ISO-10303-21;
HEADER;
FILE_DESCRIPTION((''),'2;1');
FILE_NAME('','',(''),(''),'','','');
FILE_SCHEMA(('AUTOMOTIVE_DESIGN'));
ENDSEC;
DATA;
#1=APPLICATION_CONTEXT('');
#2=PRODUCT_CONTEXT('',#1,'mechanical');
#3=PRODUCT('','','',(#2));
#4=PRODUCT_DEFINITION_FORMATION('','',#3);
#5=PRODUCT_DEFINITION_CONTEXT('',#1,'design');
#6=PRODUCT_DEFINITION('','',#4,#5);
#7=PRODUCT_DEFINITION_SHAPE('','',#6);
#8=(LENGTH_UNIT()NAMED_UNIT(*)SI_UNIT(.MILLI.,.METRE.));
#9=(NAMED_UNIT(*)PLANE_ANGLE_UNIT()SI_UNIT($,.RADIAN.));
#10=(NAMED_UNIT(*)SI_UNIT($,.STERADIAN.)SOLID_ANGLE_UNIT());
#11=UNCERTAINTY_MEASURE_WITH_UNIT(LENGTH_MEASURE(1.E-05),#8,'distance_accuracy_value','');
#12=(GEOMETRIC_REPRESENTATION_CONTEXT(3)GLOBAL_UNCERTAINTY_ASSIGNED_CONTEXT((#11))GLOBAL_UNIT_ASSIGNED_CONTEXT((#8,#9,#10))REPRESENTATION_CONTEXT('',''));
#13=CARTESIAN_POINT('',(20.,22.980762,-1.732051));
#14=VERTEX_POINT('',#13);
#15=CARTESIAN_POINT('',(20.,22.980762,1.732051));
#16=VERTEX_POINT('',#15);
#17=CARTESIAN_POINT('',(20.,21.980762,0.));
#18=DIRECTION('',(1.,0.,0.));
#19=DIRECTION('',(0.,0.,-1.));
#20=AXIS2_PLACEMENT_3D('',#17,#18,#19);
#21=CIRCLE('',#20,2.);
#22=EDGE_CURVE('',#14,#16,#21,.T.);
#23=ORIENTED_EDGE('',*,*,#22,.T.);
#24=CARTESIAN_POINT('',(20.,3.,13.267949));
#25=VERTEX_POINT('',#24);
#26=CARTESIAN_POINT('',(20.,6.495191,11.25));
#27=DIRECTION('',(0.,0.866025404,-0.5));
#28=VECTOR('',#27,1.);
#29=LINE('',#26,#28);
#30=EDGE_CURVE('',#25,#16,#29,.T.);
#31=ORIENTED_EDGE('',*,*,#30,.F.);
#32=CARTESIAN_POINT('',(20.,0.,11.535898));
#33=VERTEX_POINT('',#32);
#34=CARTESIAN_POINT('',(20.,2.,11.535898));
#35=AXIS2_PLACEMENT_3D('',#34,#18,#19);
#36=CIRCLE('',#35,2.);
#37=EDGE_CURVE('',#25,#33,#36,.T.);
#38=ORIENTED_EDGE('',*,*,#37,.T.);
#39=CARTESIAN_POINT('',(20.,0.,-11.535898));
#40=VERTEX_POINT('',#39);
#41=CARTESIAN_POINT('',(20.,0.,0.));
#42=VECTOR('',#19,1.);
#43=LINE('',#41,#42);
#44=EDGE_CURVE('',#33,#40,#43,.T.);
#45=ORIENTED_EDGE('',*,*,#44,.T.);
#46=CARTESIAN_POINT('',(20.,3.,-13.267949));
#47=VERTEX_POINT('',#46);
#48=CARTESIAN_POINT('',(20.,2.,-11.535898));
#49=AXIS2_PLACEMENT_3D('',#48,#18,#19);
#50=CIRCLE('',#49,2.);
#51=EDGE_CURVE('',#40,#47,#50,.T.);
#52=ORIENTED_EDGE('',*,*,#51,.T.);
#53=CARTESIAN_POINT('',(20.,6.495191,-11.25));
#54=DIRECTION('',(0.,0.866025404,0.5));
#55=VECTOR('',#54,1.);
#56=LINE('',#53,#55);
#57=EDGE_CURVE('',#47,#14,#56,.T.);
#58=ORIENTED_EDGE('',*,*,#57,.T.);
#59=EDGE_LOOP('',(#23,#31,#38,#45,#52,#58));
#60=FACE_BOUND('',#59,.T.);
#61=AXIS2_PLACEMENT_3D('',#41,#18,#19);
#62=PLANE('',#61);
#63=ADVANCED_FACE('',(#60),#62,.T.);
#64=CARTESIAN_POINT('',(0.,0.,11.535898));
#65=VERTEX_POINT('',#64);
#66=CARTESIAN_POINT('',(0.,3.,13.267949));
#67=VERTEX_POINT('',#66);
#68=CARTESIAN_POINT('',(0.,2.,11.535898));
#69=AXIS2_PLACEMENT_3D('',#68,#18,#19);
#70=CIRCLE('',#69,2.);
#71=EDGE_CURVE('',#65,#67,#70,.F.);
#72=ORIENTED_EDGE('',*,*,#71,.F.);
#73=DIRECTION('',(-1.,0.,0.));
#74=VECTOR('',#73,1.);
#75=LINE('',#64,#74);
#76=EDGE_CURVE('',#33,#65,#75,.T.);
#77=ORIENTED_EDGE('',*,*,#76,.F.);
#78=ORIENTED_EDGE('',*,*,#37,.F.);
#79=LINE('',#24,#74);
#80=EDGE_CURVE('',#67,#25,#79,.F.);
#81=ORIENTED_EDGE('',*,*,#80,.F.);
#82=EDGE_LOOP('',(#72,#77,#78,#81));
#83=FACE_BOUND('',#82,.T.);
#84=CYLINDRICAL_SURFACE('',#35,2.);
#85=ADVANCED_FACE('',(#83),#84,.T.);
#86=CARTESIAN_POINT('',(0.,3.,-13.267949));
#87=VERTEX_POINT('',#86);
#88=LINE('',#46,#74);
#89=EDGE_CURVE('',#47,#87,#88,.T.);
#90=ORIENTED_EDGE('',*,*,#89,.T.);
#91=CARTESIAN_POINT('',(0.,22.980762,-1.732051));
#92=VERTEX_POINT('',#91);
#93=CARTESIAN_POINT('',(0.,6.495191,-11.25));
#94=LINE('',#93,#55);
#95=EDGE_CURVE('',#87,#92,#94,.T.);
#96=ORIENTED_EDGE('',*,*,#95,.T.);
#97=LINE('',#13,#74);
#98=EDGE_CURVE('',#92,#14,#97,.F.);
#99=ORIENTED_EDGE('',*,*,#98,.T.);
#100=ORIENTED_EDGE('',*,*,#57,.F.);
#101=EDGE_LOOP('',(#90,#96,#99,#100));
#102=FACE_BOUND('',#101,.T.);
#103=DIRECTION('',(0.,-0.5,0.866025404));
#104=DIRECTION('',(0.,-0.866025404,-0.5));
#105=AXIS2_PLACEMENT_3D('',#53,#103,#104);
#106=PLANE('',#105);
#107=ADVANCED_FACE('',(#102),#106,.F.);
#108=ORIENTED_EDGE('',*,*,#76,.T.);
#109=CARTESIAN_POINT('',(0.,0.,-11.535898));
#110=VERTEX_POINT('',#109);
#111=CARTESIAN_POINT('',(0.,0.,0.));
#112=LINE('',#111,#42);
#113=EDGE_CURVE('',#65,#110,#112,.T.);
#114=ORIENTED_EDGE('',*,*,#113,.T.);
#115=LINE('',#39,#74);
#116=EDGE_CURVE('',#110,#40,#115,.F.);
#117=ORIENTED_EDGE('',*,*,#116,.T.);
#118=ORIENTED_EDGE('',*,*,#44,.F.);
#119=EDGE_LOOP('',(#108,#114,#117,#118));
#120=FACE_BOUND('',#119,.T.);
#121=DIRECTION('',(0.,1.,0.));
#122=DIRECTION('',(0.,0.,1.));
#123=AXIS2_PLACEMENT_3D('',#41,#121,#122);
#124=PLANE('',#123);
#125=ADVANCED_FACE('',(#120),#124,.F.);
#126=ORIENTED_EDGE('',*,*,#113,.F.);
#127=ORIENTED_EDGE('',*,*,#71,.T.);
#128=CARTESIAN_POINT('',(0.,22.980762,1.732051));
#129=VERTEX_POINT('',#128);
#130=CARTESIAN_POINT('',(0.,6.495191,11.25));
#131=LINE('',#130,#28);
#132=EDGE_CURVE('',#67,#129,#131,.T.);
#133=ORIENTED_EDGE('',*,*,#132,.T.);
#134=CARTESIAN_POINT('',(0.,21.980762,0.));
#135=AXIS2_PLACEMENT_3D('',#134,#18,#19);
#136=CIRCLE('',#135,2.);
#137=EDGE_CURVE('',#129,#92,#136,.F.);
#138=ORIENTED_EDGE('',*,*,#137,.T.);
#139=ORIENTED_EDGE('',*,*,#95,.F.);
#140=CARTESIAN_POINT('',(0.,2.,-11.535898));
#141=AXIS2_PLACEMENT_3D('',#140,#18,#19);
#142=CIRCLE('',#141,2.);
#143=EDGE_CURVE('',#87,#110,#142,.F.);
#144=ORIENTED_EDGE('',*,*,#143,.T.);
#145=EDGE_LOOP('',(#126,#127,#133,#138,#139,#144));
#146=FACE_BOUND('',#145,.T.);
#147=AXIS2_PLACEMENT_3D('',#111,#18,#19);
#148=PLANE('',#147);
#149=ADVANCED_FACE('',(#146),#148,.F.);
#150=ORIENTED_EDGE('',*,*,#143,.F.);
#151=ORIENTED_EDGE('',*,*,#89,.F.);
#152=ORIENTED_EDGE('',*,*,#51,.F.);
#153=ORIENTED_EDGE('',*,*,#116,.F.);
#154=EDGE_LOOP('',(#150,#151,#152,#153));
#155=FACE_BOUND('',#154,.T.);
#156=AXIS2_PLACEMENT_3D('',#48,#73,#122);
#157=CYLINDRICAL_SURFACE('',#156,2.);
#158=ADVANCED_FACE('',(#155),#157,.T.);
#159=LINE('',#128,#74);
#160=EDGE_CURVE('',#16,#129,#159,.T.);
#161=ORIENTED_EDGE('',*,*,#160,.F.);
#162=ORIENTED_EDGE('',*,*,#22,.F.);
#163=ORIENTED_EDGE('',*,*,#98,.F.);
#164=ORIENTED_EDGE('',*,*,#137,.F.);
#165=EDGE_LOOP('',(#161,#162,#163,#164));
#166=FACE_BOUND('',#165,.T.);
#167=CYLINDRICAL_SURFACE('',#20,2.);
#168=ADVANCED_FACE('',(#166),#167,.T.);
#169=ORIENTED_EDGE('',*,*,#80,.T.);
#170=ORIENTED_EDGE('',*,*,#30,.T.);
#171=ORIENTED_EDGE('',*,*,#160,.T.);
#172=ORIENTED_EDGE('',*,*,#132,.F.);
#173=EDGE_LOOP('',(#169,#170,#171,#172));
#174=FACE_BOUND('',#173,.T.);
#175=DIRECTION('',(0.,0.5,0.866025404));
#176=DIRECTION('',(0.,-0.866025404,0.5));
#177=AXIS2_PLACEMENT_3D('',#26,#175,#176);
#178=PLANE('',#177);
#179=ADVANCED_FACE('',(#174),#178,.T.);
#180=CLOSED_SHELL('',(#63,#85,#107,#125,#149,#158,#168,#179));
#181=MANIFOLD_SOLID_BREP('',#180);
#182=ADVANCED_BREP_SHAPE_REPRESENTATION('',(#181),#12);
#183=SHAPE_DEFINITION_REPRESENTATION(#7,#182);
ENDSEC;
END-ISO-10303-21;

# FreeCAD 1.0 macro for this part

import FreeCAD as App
import Part
import Sketcher
from FreeCAD import Vector
Q = App.Units.Quantity


def edges_at(feature, points):
    """Names of the edges that pass closest to the given points."""
    edges = feature.Shape.Edges
    near = lambda p: min(range(len(edges)), key=lambda i: edges[i].distToShape(Part.Vertex(*p))[0])
    return sorted({f"Edge{near(p) + 1}" for p in points})


def add_polygon(sketch, points):
    """Adds a closed chain of lines whose ends are joined by coincident constraints."""
    first, n = sketch.GeometryCount, len(points)
    for a, b in zip(points, points[1:] + points[:1]):
        sketch.addGeometry(Part.LineSegment(App.Vector(*a, 0), App.Vector(*b, 0)), False)
    for i in range(n):
        sketch.addConstraint(Sketcher.Constraint("Coincident", first + i, 2, first + (i + 1) % n, 1))

doc = App.newDocument("Part")
params = doc.addObject("Spreadsheet::Sheet", "Params")
for row, (alias, value) in enumerate([
    ("sketch1_height", "30 mm"),
    ("pad1_length", "20 mm"),
    ("fillet_radius", "2 mm"),
], start=1):
    params.set(f"A{row}", alias)
    params.set(f"B{row}", "=" + value)
    params.setAlias(f"B{row}", alias)

body = doc.addObject("PartDesign::Body", "Body")

# Sketch on YZ plane
sketch1 = doc.addObject("Sketcher::SketchObject", "Sketch")
body.addObject(sketch1)
sketch1.AttachmentSupport = (doc.YZ_Plane, [""])
sketch1.MapMode = "FlatFace"
add_polygon(sketch1, [(0, -15), (26, 0), (0, 15)])  # lines 0-2
sketch1.addConstraint([
    Sketcher.Constraint("Vertical", 2),
    Sketcher.Constraint("Symmetric", 1, 2, 2, 2, -1, 1),
    Sketcher.Constraint("PointOnObject", 0, 2, -1),
    Sketcher.Constraint("DistanceY", 2, 2, 2, 1, Q("30 mm")),
    Sketcher.Constraint("Angle", 0, Q("30 deg")),
])
sketch1.setExpression("Constraints[6]", "Params.sketch1_height")
pad1 = doc.addObject("PartDesign::Pad", "Pad")
body.addObject(pad1)
pad1.Profile = sketch1
pad1.setExpression("Length", "Params.pad1_length")
doc.recompute()

fillet = doc.addObject("PartDesign::Fillet", "Fillet")
body.addObject(fillet)
fillet.Base = (pad1, edges_at(pad1, [(10, 0, -15), (10, 0, 15), (10, 25.981, 0)]))
fillet.setExpression("Radius", "Params.fillet_radius")

doc.recompute()
